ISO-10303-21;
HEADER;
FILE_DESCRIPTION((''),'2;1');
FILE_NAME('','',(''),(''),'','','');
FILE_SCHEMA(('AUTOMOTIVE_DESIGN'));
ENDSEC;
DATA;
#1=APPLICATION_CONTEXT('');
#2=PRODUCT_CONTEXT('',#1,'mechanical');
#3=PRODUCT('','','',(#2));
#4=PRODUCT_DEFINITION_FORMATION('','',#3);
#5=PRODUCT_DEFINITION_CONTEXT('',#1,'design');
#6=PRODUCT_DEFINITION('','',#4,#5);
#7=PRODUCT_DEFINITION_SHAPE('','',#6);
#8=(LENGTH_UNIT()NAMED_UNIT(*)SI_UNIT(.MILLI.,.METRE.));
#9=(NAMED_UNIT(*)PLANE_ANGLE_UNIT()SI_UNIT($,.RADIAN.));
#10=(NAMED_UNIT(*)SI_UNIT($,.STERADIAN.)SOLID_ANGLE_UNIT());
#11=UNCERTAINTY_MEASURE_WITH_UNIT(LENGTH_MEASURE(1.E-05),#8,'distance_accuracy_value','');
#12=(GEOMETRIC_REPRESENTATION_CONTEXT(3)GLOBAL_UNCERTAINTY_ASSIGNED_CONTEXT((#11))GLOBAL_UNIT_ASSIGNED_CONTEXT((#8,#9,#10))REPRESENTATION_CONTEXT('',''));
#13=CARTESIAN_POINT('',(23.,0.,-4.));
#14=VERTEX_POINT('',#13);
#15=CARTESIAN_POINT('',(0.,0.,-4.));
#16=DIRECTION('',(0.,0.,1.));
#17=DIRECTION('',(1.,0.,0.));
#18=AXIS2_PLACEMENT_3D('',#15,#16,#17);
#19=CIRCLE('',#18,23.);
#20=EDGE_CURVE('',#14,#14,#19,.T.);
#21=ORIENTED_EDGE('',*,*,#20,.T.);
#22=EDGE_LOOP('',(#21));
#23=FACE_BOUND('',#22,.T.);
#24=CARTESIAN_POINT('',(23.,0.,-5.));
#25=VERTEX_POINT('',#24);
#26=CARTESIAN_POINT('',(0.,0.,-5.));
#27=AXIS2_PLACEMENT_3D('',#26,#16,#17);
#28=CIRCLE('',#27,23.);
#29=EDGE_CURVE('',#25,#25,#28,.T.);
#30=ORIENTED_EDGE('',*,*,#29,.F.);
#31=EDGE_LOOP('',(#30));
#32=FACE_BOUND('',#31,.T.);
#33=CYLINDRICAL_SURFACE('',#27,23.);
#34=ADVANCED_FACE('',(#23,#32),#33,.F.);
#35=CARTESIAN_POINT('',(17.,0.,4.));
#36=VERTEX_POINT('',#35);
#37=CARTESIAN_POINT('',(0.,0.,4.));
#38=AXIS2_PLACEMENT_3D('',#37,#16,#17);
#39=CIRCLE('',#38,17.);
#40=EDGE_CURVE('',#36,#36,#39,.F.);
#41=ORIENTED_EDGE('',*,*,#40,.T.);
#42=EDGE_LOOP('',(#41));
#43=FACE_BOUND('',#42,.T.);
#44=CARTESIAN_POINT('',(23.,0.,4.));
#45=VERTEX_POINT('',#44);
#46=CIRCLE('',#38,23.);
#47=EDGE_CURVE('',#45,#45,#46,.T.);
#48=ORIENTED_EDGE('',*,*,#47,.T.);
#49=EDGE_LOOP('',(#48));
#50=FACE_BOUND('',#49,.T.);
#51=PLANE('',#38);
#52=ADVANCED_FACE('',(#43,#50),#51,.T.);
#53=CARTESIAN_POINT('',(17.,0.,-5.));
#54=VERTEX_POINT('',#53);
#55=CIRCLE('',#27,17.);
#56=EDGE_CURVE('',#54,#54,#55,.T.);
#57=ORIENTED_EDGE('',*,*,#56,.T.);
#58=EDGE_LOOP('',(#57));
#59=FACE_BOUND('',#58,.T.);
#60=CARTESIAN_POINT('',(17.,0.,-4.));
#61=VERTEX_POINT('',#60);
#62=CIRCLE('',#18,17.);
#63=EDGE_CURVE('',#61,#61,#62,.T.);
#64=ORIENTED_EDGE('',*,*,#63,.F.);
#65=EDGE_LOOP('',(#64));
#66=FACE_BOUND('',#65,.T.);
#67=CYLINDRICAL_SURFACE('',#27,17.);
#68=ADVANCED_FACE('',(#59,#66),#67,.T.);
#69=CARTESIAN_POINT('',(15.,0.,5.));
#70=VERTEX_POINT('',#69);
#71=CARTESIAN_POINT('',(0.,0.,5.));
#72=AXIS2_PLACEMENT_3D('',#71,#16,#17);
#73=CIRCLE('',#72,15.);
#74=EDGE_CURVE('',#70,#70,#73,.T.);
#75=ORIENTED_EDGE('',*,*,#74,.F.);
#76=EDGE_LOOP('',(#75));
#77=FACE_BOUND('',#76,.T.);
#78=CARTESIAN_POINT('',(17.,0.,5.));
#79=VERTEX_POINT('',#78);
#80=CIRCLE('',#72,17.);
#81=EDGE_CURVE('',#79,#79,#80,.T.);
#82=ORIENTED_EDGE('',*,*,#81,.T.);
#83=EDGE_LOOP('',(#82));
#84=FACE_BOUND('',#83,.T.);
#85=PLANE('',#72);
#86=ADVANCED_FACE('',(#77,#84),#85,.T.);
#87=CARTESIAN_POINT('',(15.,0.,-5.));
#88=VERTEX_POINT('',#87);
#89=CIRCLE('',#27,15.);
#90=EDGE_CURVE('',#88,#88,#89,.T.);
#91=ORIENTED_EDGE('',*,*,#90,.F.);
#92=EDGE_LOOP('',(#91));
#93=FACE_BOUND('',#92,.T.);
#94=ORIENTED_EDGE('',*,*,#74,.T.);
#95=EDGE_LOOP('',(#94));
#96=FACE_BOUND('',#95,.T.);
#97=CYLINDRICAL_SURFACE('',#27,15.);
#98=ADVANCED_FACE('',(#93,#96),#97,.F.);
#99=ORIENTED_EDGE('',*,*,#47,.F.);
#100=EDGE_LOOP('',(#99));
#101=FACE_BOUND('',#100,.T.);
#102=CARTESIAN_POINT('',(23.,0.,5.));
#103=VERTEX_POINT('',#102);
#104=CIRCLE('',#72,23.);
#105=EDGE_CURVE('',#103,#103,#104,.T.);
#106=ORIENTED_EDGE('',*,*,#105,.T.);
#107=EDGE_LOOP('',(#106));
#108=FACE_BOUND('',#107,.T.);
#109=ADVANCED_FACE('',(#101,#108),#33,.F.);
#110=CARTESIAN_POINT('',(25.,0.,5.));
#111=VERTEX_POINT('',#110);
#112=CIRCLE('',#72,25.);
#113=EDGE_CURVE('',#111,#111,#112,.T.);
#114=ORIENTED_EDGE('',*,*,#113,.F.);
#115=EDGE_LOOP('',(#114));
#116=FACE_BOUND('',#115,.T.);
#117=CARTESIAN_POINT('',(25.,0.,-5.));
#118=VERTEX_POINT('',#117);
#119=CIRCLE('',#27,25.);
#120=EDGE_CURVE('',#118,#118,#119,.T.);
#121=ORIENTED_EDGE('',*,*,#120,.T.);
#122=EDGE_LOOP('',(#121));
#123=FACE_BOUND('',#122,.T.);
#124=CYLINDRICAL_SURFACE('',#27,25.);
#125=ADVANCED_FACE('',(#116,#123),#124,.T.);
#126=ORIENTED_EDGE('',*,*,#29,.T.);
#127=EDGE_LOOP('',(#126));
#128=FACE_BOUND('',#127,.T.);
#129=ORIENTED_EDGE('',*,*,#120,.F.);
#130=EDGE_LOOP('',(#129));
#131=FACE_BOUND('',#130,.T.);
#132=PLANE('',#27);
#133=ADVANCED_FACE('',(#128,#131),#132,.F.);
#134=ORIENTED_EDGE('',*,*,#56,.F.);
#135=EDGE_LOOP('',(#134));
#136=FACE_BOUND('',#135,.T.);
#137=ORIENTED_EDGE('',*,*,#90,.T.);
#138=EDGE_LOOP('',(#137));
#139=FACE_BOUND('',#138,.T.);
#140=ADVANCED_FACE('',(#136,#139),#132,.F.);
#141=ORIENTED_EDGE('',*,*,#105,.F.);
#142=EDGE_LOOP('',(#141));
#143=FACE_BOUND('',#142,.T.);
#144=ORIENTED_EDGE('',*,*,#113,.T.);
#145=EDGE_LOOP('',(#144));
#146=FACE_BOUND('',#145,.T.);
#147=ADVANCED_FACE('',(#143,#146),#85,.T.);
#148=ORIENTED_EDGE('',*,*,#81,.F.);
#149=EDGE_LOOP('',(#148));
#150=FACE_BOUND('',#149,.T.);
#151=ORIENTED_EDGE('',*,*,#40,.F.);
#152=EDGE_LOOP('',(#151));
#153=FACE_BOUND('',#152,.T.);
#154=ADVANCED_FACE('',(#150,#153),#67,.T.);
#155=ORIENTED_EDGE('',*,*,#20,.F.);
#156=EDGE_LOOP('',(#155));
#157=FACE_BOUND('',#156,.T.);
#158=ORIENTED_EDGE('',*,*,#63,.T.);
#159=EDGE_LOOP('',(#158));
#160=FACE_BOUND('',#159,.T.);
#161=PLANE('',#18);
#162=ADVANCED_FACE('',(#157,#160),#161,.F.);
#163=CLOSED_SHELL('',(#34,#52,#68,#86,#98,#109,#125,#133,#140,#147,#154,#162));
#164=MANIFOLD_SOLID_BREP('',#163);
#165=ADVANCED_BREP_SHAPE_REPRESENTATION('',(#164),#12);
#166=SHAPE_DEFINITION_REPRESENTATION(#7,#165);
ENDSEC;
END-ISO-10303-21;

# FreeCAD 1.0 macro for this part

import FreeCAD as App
import Part
import Sketcher

V = App.Vector
Q = App.Units.Quantity

doc = App.newDocument("Part")
body = doc.addObject("PartDesign::Body", "Body")

# Sketch on XY plane
sketch1 = body.newObject("Sketcher::SketchObject", "Sketch")
sketch1.AttachmentSupport = (doc.getObject("XY_Plane"), [""])
sketch1.MapMode = "FlatFace"
sketch1.addGeometry([
    Part.Circle(V(0, 0, 0), V(0, 0, 1), 17),
    Part.Circle(V(0, 0, 0), V(0, 0, 1), 15),
], False)
sketch1.addConstraint([
    Sketcher.Constraint("Coincident", 0, 3, -1, 1),
    Sketcher.Constraint("Coincident", 1, 3, -1, 1),
    Sketcher.Constraint("Diameter", 0, Q("34 mm")),
    Sketcher.Constraint("Diameter", 1, Q("30 mm")),
])
pad1 = body.newObject("PartDesign::Pad", "Pad")
pad1.Profile = sketch1
pad1.Type = "TwoLengths"
pad1.Length = 5
pad1.Length2 = 5
body2 = doc.addObject("PartDesign::Body", "Body001")

# Sketch on XY plane
sketch2 = body2.newObject("Sketcher::SketchObject", "Sketch001")
sketch2.AttachmentSupport = (doc.getObject("XY_Plane001"), [""])
sketch2.MapMode = "FlatFace"
sketch2.addGeometry([
    Part.Circle(V(0, 0, 0), V(0, 0, 1), 25),
    Part.Circle(V(0, 0, 0), V(0, 0, 1), 23),
], False)
sketch2.addConstraint([
    Sketcher.Constraint("Coincident", 0, 3, -1, 1),
    Sketcher.Constraint("Coincident", 1, 3, -1, 1),
    Sketcher.Constraint("Diameter", 0, Q("50 mm")),
    Sketcher.Constraint("Diameter", 1, Q("46 mm")),
])
pad2 = body2.newObject("PartDesign::Pad", "Pad001")
pad2.Profile = sketch2
pad2.Type = "TwoLengths"
pad2.Length = 5
pad2.Length2 = 5
body.AllowCompound = True
doc.recompute()

boolean = body.newObject("PartDesign::Boolean", "Boolean")
boolean.Type = "Fuse"
boolean.addObjects([body2])

# Sketch on XY plane
sketch3 = body.newObject("Sketcher::SketchObject", "Sketch002")
sketch3.AttachmentSupport = (doc.getObject("XY_Plane"), [""])
sketch3.MapMode = "FlatFace"
sketch3.addGeometry([
    Part.Circle(V(0, 0, 0), V(0, 0, 1), 23),
    Part.Circle(V(0, 0, 0), V(0, 0, 1), 17),
], False)
sketch3.addConstraint([
    Sketcher.Constraint("Coincident", 0, 3, -1, 1),
    Sketcher.Constraint("Coincident", 1, 3, -1, 1),
    Sketcher.Constraint("Diameter", 0, Q("46 mm")),
    Sketcher.Constraint("Diameter", 1, Q("34 mm")),
])
pad3 = body.newObject("PartDesign::Pad", "Pad002")
pad3.Profile = sketch3
pad3.Type = "TwoLengths"
pad3.Length = 4
pad3.Length2 = 4

doc.recompute()
